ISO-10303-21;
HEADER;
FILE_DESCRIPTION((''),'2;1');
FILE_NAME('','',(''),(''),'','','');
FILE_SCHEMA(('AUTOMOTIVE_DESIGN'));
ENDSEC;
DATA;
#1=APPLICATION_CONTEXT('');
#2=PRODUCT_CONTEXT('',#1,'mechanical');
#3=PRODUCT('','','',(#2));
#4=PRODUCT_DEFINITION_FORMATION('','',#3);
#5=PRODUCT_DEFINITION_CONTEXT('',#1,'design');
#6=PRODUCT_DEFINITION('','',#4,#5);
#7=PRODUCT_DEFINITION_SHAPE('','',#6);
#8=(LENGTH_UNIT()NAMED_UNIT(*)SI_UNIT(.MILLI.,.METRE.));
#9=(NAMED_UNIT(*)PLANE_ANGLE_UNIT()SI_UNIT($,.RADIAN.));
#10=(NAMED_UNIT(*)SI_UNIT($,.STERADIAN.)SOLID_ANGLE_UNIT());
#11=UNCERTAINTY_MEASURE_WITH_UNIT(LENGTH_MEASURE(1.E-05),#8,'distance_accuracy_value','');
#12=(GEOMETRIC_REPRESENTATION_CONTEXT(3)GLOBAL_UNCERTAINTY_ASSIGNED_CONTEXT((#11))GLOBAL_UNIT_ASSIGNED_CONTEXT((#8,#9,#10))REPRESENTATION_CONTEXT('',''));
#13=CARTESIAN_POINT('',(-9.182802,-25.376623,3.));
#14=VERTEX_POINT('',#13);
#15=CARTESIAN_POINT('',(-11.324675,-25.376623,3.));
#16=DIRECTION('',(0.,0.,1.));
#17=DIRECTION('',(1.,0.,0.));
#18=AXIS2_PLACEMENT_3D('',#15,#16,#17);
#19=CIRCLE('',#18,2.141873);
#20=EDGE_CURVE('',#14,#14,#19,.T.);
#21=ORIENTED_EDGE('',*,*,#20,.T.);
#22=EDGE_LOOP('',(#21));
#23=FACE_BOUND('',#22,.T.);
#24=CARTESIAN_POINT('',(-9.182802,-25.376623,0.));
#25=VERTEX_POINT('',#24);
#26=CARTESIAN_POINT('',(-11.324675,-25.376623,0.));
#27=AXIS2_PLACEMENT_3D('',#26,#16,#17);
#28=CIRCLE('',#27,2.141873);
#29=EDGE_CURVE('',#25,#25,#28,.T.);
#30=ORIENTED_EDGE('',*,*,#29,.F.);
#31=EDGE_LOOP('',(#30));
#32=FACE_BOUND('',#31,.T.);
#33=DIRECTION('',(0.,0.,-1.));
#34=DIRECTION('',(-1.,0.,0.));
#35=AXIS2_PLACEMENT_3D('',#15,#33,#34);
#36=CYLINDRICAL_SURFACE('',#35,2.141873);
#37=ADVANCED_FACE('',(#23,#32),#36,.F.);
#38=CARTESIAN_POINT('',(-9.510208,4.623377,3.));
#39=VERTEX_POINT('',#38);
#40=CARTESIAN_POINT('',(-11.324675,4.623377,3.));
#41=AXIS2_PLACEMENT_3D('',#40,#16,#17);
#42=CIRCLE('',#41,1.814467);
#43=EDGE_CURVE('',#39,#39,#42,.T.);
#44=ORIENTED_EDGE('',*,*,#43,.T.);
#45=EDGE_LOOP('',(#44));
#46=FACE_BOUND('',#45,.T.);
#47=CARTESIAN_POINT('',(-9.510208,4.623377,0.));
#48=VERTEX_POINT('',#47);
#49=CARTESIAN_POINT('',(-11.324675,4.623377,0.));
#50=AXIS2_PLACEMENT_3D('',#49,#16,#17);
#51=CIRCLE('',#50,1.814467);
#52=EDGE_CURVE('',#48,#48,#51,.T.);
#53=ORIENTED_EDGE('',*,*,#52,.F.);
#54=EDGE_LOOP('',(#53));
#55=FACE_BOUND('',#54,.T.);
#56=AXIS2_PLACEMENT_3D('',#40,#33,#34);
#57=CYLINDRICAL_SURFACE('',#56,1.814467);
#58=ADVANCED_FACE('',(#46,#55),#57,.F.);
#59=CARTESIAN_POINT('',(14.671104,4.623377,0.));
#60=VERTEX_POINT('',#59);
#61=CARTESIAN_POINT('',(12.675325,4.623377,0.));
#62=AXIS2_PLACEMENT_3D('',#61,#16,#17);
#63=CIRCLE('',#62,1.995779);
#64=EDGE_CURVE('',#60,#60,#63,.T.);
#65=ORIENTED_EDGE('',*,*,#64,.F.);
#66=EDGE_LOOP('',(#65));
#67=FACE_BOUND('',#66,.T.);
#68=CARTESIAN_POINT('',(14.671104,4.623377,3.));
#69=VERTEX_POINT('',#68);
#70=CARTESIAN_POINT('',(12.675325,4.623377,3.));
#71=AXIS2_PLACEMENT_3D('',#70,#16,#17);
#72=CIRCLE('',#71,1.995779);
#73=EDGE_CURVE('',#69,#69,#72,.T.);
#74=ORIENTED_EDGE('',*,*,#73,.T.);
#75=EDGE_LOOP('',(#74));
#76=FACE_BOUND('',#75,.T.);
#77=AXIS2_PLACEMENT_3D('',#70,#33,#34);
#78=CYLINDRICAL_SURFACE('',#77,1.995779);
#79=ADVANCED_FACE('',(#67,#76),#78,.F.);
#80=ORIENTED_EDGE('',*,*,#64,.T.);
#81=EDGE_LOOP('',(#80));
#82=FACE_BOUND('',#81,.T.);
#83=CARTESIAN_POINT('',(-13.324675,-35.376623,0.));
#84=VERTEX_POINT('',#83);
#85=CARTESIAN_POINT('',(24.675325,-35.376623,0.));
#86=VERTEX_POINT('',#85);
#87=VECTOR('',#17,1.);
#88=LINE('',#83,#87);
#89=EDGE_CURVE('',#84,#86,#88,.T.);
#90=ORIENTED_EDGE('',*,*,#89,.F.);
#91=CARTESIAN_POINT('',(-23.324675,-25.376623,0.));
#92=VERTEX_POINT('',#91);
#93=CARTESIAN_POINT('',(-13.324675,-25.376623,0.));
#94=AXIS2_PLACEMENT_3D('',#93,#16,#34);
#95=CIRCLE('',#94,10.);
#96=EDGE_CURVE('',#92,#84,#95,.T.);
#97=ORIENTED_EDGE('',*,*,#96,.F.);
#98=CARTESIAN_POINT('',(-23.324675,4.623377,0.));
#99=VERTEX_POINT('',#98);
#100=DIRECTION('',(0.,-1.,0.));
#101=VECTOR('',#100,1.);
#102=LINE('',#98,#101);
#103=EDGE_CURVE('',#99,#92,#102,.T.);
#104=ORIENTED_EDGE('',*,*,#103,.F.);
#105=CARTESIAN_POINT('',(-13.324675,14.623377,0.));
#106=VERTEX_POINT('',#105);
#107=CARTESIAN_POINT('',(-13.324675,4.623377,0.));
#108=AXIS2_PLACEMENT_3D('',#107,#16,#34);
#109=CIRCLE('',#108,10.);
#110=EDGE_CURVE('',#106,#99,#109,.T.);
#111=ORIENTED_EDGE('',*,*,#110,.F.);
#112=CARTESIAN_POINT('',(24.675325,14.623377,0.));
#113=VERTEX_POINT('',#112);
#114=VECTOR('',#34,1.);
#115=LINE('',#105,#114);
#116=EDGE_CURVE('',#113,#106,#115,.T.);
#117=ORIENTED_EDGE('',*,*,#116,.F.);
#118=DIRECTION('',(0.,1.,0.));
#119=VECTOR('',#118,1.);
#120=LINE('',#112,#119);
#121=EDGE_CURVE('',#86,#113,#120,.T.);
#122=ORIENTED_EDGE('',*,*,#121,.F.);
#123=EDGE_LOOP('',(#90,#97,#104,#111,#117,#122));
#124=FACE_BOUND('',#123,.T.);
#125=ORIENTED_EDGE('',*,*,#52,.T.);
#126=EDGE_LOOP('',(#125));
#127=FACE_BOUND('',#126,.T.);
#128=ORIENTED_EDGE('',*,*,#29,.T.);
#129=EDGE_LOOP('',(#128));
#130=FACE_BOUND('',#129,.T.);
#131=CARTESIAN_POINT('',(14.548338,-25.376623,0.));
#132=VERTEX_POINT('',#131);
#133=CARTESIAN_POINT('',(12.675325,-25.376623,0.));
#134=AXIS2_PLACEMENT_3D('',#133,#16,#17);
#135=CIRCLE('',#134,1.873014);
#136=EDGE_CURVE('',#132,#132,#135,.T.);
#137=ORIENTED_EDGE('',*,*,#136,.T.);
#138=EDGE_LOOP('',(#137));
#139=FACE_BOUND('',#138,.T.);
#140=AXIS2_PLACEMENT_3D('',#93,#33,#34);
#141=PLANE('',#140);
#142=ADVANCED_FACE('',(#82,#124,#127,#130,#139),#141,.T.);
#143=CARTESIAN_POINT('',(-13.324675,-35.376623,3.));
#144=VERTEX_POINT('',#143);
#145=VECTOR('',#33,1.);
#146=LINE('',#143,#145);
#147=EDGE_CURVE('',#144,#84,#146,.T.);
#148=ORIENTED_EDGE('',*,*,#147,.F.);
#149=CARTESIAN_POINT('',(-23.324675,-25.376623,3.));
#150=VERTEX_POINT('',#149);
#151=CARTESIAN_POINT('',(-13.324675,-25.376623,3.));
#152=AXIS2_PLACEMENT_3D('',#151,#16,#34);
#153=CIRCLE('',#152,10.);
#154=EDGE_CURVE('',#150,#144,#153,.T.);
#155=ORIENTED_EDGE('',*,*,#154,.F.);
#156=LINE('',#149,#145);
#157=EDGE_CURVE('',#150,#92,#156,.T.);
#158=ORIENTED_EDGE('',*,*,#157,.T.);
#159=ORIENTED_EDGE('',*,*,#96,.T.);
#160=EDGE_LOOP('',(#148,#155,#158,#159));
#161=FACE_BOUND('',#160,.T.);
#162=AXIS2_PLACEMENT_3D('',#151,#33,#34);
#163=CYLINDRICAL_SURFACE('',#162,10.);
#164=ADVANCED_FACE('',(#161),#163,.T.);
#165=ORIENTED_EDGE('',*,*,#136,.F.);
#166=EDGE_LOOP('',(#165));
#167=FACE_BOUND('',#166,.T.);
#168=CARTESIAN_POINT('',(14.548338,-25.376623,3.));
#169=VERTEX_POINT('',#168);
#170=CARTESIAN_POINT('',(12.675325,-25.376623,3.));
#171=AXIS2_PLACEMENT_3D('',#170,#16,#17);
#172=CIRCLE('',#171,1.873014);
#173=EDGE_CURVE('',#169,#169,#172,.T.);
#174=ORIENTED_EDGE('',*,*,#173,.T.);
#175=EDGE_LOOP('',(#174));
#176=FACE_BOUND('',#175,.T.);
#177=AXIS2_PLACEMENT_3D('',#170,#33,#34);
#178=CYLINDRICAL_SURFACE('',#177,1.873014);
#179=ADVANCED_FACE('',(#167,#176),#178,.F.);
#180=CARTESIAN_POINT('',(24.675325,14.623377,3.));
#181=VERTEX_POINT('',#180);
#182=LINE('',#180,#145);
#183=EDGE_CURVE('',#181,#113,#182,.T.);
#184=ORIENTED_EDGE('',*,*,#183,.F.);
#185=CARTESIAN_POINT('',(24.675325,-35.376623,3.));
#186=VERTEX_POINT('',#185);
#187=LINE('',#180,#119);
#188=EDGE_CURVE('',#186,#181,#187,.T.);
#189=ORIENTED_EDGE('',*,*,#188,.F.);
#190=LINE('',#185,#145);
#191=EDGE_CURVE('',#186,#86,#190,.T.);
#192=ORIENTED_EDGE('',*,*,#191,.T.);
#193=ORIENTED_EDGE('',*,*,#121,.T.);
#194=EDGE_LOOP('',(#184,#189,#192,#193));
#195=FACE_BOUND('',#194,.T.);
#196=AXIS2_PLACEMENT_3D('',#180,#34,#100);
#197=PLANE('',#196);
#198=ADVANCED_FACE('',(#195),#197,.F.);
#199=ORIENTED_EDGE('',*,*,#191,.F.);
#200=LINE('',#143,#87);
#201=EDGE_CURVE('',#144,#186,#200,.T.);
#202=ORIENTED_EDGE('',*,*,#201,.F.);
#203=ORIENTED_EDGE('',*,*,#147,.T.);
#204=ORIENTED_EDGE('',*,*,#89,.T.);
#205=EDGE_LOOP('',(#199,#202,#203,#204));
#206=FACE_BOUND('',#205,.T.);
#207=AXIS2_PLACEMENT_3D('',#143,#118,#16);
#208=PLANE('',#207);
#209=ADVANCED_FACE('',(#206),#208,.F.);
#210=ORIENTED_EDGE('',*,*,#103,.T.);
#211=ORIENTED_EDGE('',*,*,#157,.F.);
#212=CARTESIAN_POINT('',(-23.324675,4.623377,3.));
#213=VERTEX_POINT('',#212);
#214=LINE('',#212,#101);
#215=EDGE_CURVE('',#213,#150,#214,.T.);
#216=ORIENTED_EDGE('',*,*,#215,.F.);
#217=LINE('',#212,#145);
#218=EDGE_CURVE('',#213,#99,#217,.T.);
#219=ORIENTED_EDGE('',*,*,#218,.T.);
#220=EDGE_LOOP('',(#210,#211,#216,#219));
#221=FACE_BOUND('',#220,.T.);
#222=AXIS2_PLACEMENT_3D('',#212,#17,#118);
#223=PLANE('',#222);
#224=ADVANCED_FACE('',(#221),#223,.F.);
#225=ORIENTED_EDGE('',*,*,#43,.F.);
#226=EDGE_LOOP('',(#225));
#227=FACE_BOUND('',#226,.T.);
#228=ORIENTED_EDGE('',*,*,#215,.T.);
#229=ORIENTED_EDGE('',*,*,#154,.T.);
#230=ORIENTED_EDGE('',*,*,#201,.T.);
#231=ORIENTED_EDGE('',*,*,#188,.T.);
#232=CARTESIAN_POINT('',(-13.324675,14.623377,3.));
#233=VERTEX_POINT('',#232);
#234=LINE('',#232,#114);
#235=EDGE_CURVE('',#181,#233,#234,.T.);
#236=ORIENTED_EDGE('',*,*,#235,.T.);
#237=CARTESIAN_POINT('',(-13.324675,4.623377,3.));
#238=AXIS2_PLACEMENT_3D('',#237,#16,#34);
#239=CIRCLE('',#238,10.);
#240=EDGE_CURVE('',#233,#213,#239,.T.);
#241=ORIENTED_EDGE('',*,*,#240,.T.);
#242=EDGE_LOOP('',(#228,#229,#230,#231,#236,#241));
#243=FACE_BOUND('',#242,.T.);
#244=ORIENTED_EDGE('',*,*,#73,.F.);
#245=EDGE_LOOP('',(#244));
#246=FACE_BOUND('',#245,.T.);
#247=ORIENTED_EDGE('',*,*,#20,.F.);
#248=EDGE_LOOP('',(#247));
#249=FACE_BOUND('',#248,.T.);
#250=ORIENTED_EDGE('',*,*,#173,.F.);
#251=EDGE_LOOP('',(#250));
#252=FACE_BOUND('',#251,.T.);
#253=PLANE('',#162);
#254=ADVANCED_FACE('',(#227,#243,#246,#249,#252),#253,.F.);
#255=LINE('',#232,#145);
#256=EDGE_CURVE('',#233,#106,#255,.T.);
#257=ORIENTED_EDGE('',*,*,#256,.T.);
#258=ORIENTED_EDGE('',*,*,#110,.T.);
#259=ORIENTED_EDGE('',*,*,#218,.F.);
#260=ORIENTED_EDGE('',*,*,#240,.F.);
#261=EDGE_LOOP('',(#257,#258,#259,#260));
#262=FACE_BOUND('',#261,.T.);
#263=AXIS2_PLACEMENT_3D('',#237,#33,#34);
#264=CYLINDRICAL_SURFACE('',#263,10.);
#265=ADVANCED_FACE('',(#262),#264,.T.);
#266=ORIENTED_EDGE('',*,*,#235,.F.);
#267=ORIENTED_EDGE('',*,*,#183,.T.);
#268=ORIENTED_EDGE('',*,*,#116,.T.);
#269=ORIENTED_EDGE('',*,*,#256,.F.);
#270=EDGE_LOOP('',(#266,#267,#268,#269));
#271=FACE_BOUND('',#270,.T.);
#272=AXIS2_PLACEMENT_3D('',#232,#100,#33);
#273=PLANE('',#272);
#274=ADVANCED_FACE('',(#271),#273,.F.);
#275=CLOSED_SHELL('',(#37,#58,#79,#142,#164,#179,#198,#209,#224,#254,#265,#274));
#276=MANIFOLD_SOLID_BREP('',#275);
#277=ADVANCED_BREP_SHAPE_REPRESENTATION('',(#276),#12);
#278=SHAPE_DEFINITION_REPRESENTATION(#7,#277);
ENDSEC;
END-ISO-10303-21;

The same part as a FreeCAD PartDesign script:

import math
import FreeCAD as App
import Part
import Sketcher

V = App.Vector

doc = App.newDocument("Part")
body = doc.addObject("PartDesign::Body", "Body")

sketch1 = doc.addObject("Sketcher::SketchObject", "Sketch")
body.addObject(sketch1)
sketch1.AttachmentSupport = (doc.XY_Plane, [""])
sketch1.MapMode = "FlatFace"
sketch1.addGeometry([
    Part.LineSegment(V(24.7, 14.6, 0), V(-13.3, 14.6, 0)),
    Part.ArcOfCircle(Part.Circle(V(-13.3, 4.6, 0), V(0, 0, 1), 10), math.radians(90), math.radians(180)),
    Part.LineSegment(V(-23.3, 4.6, 0), V(-23.3, -25.4, 0)),
    Part.ArcOfCircle(Part.Circle(V(-13.3, -25.4, 0), V(0, 0, 1), 10), math.radians(-180), math.radians(-90)),
    Part.LineSegment(V(-13.3, -35.4, 0), V(24.7, -35.4, 0)),
    Part.LineSegment(V(24.7, -35.4, 0), V(24.7, 14.6, 0)),
    Part.Circle(V(12.7, -25.4, 0), V(0, 0, 1), 1.9),
    Part.Circle(V(-11.3, -25.4, 0), V(0, 0, 1), 2.1),
    Part.Circle(V(12.7, 4.6, 0), V(0, 0, 1), 2),
    Part.Circle(V(-11.3, 4.6, 0), V(0, 0, 1), 1.8),
], False)
sketch1.addConstraint([
    Sketcher.Constraint("Tangent", 0, 2, 1, 1),
    Sketcher.Constraint("Tangent", 1, 2, 2, 1),
    Sketcher.Constraint("Tangent", 2, 2, 3, 1),
    Sketcher.Constraint("Tangent", 3, 2, 4, 1),
    Sketcher.Constraint("Coincident", 4, 2, 5, 1),
    Sketcher.Constraint("Coincident", 5, 2, 0, 1),
    Sketcher.Constraint("Horizontal", 0),
    Sketcher.Constraint("Vertical", 2),
    Sketcher.Constraint("Horizontal", 4),
    Sketcher.Constraint("Vertical", 5),
    Sketcher.Constraint("Equal", 1, 3),
    Sketcher.Constraint("Horizontal", 3, 3, 6, 3),
    Sketcher.Constraint("Horizontal", 6, 3, 7, 3),
    Sketcher.Constraint("Horizontal", 1, 3, 8, 3),
    Sketcher.Constraint("Horizontal", 8, 3, 9, 3),
    Sketcher.Constraint("Vertical", 6, 3, 8, 3),
    Sketcher.Constraint("Vertical", 7, 3, 9, 3),
    Sketcher.Constraint("Radius", 1, 10.0),
    Sketcher.Constraint("DistanceX", 0, 2, 0, 1, 38.0),
    Sketcher.Constraint("DistanceY", 2, 2, 2, 1, 30.0),
    Sketcher.Constraint("DistanceX", 3, 3, 6, 3, 26.0),
    Sketcher.Constraint("DistanceX", 3, 3, 7, 3, 2.0),
    Sketcher.Constraint("Diameter", 6, 3.746027),
    Sketcher.Constraint("Diameter", 7, 4.283746),
    Sketcher.Constraint("Diameter", 8, 3.991558),
    Sketcher.Constraint("Diameter", 9, 3.628935),
    Sketcher.Constraint("DistanceX", 1, 3, -1, 1, 13.324675),
    Sketcher.Constraint("DistanceY", -1, 1, 1, 3, 4.623377),
])
pad1 = doc.addObject("PartDesign::Pad", "Pad")
body.addObject(pad1)
pad1.Profile = sketch1
pad1.Length = 3

doc.recompute()
